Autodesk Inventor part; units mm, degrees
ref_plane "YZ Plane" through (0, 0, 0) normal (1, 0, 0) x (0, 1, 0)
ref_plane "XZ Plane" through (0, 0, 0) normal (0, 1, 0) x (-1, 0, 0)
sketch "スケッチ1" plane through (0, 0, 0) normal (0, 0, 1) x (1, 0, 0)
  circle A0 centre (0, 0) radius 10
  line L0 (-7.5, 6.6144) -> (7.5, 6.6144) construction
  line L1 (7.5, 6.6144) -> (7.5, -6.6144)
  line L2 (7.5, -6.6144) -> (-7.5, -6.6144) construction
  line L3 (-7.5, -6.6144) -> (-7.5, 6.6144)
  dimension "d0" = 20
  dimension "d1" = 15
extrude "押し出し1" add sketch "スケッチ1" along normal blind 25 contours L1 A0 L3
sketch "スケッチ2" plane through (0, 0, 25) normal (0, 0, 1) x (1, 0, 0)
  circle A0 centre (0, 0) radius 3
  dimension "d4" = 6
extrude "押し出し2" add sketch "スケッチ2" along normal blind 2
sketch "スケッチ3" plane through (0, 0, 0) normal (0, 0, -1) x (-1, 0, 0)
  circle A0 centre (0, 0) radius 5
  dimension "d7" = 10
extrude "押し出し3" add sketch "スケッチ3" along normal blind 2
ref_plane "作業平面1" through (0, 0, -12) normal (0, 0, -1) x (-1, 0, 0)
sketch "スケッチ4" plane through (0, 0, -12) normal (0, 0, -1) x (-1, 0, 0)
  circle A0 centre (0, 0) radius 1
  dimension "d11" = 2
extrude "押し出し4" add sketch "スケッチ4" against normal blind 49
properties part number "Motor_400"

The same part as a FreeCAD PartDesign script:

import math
import FreeCAD as App
import Part
import Sketcher
from FreeCAD import Vector

doc = App.newDocument("Part")
body = doc.addObject("PartDesign::Body", "Body")

sketch1 = body.newObject("Sketcher::SketchObject", "Sketch")
sketch1.AttachmentSupport = (doc.getObject("XY_Plane"), [""])
sketch1.MapMode = "FlatFace"
sketch1.addGeometry([
    Part.LineSegment(Vector(8, -7, 0), Vector(8, 7, 0)),
    Part.ArcOfCircle(Part.Circle(Vector(0, 0, 0), Vector(0, 0, 1), 10), math.radians(41), math.radians(139)),
    Part.LineSegment(Vector(-8, 7, 0), Vector(-8, -7, 0)),
    Part.ArcOfCircle(Part.Circle(Vector(0, 0, 0), Vector(0, 0, 1), 10), math.radians(-139), math.radians(-41)),
], False)
sketch1.addConstraint([
    Sketcher.Constraint("Coincident", 0, 2, 1, 1),
    Sketcher.Constraint("Coincident", 1, 2, 2, 1),
    Sketcher.Constraint("Coincident", 2, 2, 3, 1),
    Sketcher.Constraint("Coincident", 3, 2, 0, 1),
    Sketcher.Constraint("Vertical", 0),
    Sketcher.Constraint("Vertical", 2),
    Sketcher.Constraint("Coincident", 1, 3, -1, 1),
    Sketcher.Constraint("Coincident", 3, 3, -1, 1),
    Sketcher.Constraint("Equal", 1, 3),
    Sketcher.Constraint("Horizontal", 0, 2, 1, 2),
    Sketcher.Constraint("Radius", 1, 10.0),
    Sketcher.Constraint("DistanceX", 1, 2, 0, 2, 15.0),
])
pad1 = body.newObject("PartDesign::Pad", "Pad")
pad1.Profile = sketch1
pad1.Length = 25

sketch2 = body.newObject("Sketcher::SketchObject", "Sketch001")
sketch2.AttachmentSupport = (doc.getObject("XY_Plane"), [""])
sketch2.MapMode = "FlatFace"
sketch2.AttachmentOffset = App.Placement(Vector(0, 0, 25), App.Rotation())
sketch2.addGeometry(Part.Circle(Vector(0, 0, 0), Vector(0, 0, 1), 3), False)
sketch2.addConstraint([
    Sketcher.Constraint("Coincident", 0, 3, -1, 1),
    Sketcher.Constraint("Diameter", 0, 6.0),
])
pad2 = body.newObject("PartDesign::Pad", "Pad001")
pad2.Profile = sketch2
pad2.Length = 2

sketch3 = body.newObject("Sketcher::SketchObject", "Sketch002")
sketch3.AttachmentSupport = (doc.getObject("XY_Plane"), [""])
sketch3.MapMode = "FlatFace"
sketch3.addGeometry(Part.Circle(Vector(0, 0, 0), Vector(0, 0, 1), 5), False)
sketch3.addConstraint([
    Sketcher.Constraint("Coincident", 0, 3, -1, 1),
    Sketcher.Constraint("Diameter", 0, 10.0),
])
pad3 = body.newObject("PartDesign::Pad", "Pad002")
pad3.Profile = sketch3
pad3.Length = 2
pad3.Reversed = True

sketch4 = body.newObject("Sketcher::SketchObject", "Sketch003")
sketch4.AttachmentSupport = (doc.getObject("XY_Plane"), [""])
sketch4.MapMode = "FlatFace"
sketch4.AttachmentOffset = App.Placement(Vector(0, 0, -12), App.Rotation())
sketch4.addGeometry(Part.Circle(Vector(0, 0, 0), Vector(0, 0, 1), 1), False)
sketch4.addConstraint([
    Sketcher.Constraint("Coincident", 0, 3, -1, 1),
    Sketcher.Constraint("Diameter", 0, 2.0),
])
pad4 = body.newObject("PartDesign::Pad", "Pad003")
pad4.Profile = sketch4
pad4.Length = 49

doc.recompute()
